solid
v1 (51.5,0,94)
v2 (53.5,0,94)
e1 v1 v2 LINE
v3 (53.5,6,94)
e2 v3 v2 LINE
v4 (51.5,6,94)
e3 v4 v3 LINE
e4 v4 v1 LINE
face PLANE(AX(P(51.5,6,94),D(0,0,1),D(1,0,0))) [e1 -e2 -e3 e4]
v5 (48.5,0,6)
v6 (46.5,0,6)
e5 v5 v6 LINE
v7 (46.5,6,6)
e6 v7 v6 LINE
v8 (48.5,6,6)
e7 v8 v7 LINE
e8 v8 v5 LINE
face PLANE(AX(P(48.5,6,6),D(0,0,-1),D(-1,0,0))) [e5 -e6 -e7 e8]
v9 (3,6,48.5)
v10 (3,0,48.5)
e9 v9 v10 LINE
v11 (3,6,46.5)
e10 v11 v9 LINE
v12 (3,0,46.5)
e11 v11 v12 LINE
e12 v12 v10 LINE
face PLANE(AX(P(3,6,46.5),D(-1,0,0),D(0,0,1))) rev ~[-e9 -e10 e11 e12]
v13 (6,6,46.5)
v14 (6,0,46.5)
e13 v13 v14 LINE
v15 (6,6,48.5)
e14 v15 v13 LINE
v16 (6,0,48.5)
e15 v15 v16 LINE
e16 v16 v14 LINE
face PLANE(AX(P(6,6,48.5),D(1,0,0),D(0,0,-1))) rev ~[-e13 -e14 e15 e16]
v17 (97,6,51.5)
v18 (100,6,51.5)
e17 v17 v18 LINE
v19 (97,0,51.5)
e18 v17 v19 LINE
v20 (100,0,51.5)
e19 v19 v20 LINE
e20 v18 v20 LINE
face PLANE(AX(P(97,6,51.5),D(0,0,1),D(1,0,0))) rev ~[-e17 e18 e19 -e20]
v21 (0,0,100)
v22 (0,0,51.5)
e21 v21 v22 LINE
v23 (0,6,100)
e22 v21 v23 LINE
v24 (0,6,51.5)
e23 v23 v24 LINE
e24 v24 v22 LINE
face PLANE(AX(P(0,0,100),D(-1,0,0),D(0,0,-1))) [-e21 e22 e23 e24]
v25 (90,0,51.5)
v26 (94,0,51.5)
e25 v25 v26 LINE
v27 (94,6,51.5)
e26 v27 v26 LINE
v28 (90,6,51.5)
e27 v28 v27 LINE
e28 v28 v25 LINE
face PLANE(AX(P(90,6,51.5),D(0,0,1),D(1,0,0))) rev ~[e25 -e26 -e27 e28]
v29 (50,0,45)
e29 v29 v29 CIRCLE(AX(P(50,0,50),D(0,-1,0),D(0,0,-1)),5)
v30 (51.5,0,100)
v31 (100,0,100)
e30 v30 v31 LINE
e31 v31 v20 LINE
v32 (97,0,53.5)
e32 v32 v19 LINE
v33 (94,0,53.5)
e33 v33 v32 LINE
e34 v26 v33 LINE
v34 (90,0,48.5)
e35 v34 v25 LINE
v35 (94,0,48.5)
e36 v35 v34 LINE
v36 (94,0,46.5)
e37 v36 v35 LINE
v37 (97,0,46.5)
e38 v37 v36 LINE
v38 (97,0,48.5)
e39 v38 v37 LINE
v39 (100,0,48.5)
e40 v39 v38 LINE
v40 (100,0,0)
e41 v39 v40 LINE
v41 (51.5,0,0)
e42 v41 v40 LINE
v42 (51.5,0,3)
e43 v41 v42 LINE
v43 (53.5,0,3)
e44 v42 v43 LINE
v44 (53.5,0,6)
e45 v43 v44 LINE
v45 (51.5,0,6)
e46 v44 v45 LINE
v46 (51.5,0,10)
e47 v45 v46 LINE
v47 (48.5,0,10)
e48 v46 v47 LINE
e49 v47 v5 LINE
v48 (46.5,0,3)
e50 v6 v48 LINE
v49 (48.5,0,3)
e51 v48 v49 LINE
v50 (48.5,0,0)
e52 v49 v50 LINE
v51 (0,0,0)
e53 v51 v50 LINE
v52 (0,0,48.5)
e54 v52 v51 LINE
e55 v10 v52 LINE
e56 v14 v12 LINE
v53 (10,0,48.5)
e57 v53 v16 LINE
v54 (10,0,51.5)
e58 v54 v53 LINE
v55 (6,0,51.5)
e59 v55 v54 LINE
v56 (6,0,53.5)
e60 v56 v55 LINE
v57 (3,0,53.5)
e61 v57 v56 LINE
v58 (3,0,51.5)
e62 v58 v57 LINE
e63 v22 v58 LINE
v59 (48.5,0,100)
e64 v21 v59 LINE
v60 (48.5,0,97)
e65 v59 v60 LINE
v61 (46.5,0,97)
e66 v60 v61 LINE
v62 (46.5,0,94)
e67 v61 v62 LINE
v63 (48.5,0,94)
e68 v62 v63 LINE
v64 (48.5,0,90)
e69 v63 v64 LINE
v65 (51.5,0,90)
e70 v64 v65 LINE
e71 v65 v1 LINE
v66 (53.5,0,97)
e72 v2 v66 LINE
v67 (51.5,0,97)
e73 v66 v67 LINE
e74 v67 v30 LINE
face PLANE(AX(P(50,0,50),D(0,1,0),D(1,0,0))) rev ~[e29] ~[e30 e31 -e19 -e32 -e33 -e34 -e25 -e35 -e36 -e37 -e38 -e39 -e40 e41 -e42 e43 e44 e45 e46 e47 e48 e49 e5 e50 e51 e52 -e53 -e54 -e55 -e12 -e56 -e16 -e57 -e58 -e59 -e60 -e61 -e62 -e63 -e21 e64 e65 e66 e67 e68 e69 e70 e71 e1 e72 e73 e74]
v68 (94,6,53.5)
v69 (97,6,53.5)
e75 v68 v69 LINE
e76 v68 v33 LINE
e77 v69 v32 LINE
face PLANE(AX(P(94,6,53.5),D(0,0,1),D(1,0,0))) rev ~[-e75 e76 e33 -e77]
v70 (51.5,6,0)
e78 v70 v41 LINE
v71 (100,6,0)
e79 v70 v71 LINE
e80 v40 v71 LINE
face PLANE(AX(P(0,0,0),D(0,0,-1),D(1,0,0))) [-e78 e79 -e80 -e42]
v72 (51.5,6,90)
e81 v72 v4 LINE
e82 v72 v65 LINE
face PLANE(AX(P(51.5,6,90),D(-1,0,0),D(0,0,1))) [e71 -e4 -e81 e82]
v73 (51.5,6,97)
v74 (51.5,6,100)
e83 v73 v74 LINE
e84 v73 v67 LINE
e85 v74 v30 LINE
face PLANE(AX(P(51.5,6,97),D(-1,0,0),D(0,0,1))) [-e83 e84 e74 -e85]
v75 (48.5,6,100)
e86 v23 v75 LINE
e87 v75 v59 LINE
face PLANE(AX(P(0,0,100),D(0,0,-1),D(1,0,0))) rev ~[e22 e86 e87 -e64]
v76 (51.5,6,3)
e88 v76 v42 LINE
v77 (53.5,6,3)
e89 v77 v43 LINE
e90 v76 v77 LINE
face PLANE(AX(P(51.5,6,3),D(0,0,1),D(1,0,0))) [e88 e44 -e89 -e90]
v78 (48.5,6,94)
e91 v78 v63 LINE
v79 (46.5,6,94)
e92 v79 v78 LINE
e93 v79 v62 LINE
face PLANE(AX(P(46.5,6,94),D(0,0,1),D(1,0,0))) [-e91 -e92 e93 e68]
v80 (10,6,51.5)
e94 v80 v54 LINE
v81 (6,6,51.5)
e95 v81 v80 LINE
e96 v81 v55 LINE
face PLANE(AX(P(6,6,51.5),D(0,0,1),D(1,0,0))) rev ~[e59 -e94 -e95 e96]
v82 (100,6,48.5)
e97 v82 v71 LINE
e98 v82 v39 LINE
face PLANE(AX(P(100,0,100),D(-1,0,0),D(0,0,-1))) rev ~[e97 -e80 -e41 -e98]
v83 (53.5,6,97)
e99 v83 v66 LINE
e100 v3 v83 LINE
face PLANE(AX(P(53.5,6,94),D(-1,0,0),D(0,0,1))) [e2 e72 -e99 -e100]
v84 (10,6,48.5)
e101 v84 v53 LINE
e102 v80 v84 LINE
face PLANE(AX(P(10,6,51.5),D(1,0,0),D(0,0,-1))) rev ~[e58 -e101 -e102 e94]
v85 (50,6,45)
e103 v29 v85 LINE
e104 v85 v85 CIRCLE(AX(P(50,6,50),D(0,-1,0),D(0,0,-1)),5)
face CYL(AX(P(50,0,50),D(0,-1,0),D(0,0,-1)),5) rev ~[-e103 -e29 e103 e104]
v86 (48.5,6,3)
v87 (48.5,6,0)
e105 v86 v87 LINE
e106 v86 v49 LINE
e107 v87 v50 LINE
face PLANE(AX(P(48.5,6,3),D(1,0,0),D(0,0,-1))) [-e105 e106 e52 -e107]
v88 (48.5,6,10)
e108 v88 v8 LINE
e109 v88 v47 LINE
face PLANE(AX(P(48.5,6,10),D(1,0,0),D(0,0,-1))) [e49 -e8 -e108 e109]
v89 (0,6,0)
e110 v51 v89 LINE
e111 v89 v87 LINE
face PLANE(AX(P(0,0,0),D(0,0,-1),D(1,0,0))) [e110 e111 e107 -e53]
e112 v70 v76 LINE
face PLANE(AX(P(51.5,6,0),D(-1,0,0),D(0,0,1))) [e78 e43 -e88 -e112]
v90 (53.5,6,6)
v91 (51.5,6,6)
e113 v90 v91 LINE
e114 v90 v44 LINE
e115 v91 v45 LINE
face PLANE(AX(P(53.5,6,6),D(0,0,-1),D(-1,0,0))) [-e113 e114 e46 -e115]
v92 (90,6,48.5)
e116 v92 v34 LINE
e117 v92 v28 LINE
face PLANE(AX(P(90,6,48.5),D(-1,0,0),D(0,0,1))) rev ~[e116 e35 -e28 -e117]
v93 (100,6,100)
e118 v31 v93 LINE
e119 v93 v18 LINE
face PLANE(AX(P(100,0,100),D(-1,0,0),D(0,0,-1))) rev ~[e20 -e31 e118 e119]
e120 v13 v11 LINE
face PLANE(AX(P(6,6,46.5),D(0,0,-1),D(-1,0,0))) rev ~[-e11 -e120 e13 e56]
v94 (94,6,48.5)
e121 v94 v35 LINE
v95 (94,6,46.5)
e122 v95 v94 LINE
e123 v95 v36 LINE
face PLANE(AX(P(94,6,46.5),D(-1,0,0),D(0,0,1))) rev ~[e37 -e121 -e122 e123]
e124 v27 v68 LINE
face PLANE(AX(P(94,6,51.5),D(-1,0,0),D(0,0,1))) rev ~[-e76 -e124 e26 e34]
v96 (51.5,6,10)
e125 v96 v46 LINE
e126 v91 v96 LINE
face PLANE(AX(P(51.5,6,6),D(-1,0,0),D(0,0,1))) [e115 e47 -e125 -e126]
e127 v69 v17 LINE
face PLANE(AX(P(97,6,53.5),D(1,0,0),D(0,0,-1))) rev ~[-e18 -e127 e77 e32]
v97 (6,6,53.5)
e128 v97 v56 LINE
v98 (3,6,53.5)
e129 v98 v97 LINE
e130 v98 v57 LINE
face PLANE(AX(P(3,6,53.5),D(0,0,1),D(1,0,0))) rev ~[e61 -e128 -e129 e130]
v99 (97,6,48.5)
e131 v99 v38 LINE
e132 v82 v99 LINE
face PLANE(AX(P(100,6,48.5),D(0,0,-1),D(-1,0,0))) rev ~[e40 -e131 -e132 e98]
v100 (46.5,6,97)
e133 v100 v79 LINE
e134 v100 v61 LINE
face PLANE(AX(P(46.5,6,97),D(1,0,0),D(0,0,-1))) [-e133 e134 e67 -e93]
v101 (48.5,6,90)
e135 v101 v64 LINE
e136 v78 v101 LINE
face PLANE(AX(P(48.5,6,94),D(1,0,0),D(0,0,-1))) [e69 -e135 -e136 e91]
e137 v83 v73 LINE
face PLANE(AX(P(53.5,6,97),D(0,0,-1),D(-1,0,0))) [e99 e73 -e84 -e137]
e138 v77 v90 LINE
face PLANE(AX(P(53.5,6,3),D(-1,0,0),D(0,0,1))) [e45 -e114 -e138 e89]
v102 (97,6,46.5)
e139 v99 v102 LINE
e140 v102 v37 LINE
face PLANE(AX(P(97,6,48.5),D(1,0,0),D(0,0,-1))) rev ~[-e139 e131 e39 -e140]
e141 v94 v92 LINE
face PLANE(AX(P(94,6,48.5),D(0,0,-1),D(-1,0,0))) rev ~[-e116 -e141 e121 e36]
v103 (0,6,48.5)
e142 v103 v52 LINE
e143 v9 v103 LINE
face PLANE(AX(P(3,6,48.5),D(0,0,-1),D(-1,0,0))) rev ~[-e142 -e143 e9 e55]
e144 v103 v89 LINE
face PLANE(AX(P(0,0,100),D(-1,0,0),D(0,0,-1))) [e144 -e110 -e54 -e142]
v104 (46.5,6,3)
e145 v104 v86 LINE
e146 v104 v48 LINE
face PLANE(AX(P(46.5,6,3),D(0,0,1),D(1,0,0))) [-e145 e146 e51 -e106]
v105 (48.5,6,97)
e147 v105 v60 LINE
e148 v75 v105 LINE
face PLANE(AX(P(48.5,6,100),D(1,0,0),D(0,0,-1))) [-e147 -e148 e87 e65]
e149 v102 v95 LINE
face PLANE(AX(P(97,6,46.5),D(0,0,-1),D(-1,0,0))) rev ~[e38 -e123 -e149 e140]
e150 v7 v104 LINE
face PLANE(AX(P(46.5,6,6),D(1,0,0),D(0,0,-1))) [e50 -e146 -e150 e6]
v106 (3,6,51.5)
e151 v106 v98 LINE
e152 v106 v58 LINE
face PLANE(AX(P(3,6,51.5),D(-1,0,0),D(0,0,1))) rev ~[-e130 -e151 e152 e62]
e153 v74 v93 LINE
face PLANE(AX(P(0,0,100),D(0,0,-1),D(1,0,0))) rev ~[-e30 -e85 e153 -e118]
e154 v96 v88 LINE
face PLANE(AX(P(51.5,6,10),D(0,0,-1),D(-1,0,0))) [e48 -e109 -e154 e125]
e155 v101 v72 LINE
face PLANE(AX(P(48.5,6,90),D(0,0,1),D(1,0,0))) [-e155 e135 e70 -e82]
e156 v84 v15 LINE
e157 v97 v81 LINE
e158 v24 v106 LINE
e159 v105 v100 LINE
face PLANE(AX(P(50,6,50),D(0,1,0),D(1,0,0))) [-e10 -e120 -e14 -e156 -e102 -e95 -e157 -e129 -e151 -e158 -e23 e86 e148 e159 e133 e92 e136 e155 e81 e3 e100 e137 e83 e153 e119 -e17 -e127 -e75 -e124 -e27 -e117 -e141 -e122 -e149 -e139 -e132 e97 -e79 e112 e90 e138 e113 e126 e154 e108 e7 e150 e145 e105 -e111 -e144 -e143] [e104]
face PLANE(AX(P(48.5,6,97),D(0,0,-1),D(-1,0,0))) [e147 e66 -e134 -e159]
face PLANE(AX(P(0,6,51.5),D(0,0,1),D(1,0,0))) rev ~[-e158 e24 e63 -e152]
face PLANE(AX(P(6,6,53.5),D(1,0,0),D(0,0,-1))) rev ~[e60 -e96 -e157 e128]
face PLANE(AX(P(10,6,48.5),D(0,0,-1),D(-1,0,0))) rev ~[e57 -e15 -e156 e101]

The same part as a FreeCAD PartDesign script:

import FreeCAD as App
import Part
import Sketcher

V = App.Vector


def add_polygon(sketch, points):
    """Adds a closed chain of lines whose ends are joined by coincident constraints."""
    first, n = sketch.GeometryCount, len(points)
    for a, b in zip(points, points[1:] + points[:1]):
        sketch.addGeometry(Part.LineSegment(App.Vector(*a, 0), App.Vector(*b, 0)), False)
    for i in range(n):
        sketch.addConstraint(Sketcher.Constraint("Coincident", first + i, 2, first + (i + 1) % n, 1))

doc = App.newDocument("Part")
body = doc.addObject("PartDesign::Body", "Body")

sketch1 = body.newObject("Sketcher::SketchObject", "Sketch")
sketch1.AttachmentSupport = (doc.getObject("XZ_Plane"), [""])
sketch1.MapMode = "FlatFace"
add_polygon(sketch1, [(0, 0), (0, 100), (100, 100), (100, 0)])
sketch1.addConstraint(Sketcher.Constraint("Vertical", 0))
sketch1.addConstraint(Sketcher.Constraint("Horizontal", 1))
sketch1.addConstraint(Sketcher.Constraint("Vertical", 2))
sketch1.addConstraint(Sketcher.Constraint("Horizontal", 3))
sketch1.addConstraint(Sketcher.Constraint("Coincident", 3, 2, -1, 1))
sketch1.addConstraint(Sketcher.Constraint("Equal", 3, 0))
sketch1.addConstraint(Sketcher.Constraint("DistanceX", 1, 1, 1, 2, 100.0))
pad1 = body.newObject("PartDesign::Pad", "Pad")
pad1.Profile = sketch1
pad1.Length = 6
pad1.Reversed = True

sketch2 = body.newObject("Sketcher::SketchObject", "Sketch001")
sketch2.AttachmentSupport = (doc.getObject("XZ_Plane"), [""])
sketch2.MapMode = "FlatFace"
sketch2.AttachmentOffset = App.Placement(V(0, 0, -6), App.Rotation())
add_polygon(sketch2, [(51.5, 0), (48.5, 0), (48.5, 3), (46.5, 3), (46.5, 6), (48.5, 6), (48.5, 10), (51.5, 10), (51.5, 6), (53.5, 6), (53.5, 3), (51.5, 3)])
add_polygon(sketch2, [(48.5, 97), (48.5, 100), (51.5, 100), (51.5, 97), (53.5, 97), (53.5, 94), (51.5, 94), (51.5, 90), (48.5, 90), (48.5, 94), (46.5, 94), (46.5, 97)])
sketch2.addConstraint(Sketcher.Constraint("Horizontal", 0))
sketch2.addConstraint(Sketcher.Constraint("Vertical", 1))
sketch2.addConstraint(Sketcher.Constraint("Horizontal", 2))
sketch2.addConstraint(Sketcher.Constraint("Vertical", 3))
sketch2.addConstraint(Sketcher.Constraint("Horizontal", 4))
sketch2.addConstraint(Sketcher.Constraint("Vertical", 5))
sketch2.addConstraint(Sketcher.Constraint("Horizontal", 6))
sketch2.addConstraint(Sketcher.Constraint("Vertical", 7))
sketch2.addConstraint(Sketcher.Constraint("Horizontal", 8))
sketch2.addConstraint(Sketcher.Constraint("Vertical", 9))
sketch2.addConstraint(Sketcher.Constraint("Horizontal", 10))
sketch2.addConstraint(Sketcher.Constraint("Vertical", 11))
sketch2.addConstraint(Sketcher.Constraint("Vertical", 12))
sketch2.addConstraint(Sketcher.Constraint("Horizontal", 13))
sketch2.addConstraint(Sketcher.Constraint("Vertical", 14))
sketch2.addConstraint(Sketcher.Constraint("Horizontal", 15))
sketch2.addConstraint(Sketcher.Constraint("Vertical", 16))
sketch2.addConstraint(Sketcher.Constraint("Horizontal", 17))
sketch2.addConstraint(Sketcher.Constraint("Vertical", 18))
sketch2.addConstraint(Sketcher.Constraint("Horizontal", 19))
sketch2.addConstraint(Sketcher.Constraint("Vertical", 20))
sketch2.addConstraint(Sketcher.Constraint("Horizontal", 21))
sketch2.addConstraint(Sketcher.Constraint("Vertical", 22))
sketch2.addConstraint(Sketcher.Constraint("Horizontal", 23))
sketch2.addConstraint(Sketcher.Constraint("PointOnObject", 0, 2, -1))
sketch2.addConstraint(Sketcher.Constraint("Horizontal", 4, 2, 7, 2))
sketch2.addConstraint(Sketcher.Constraint("Horizontal", 2, 2, 9, 2))
sketch2.addConstraint(Sketcher.Constraint("Horizontal", 17, 2, 20, 2))
sketch2.addConstraint(Sketcher.Constraint("Horizontal", 15, 2, 22, 2))
sketch2.addConstraint(Sketcher.Constraint("Vertical", 1, 2, 4, 2))
sketch2.addConstraint(Sketcher.Constraint("Vertical", 7, 2, 10, 2))
sketch2.addConstraint(Sketcher.Constraint("Vertical", 5, 2, 12, 2))
sketch2.addConstraint(Sketcher.Constraint("Vertical", 11, 2, 13, 2))
sketch2.addConstraint(Sketcher.Constraint("Vertical", 9, 2, 15, 2))
sketch2.addConstraint(Sketcher.Constraint("Vertical", 14, 2, 17, 2))
sketch2.addConstraint(Sketcher.Constraint("Vertical", 12, 2, 19, 2))
sketch2.addConstraint(Sketcher.Constraint("Vertical", 3, 2, 21, 2))
sketch2.addConstraint(Sketcher.Constraint("Equal", 4, 8))
sketch2.addConstraint(Sketcher.Constraint("Equal", 19, 1))
sketch2.addConstraint(Sketcher.Constraint("Equal", 1, 3))
sketch2.addConstraint(Sketcher.Constraint("Equal", 11, 12))
sketch2.addConstraint(Sketcher.Constraint("Equal", 14, 16))
sketch2.addConstraint(Sketcher.Constraint("Equal", 7, 18))
sketch2.addConstraint(Sketcher.Constraint("DistanceX", 0, 2, 0, 1, 3.0))
sketch2.addConstraint(Sketcher.Constraint("DistanceX", 2, 2, 2, 1, 2.0))
sketch2.addConstraint(Sketcher.Constraint("DistanceY", 5, 1, 5, 2, 4.0))
sketch2.addConstraint(Sketcher.Constraint("DistanceY", -1, 1, 12, 2, 100.0))
sketch2.addConstraint(Sketcher.Constraint("DistanceX", -1, 1, 0, 2, 48.5))
pocket1 = body.newObject("PartDesign::Pocket", "Pocket")
pocket1.Profile = sketch2
pocket1.Type = "ThroughAll"
pocket1.Reversed = True

sketch3 = body.newObject("Sketcher::SketchObject", "Sketch002")
sketch3.AttachmentSupport = (doc.getObject("XZ_Plane"), [""])
sketch3.MapMode = "FlatFace"
sketch3.addGeometry(Part.Circle(V(50, 50, 0), V(0, 0, 1), 5), False)
sketch3.addConstraint(Sketcher.Constraint("Diameter", 0, 10.0))
sketch3.addConstraint(Sketcher.Constraint("DistanceX", -1, 1, 0, 3, 50.0))
sketch3.addConstraint(Sketcher.Constraint("DistanceY", -1, 1, 0, 3, 50.0))
pocket2 = body.newObject("PartDesign::Pocket", "Pocket001")
pocket2.Profile = sketch3
pocket2.Length = 10

sketch4 = body.newObject("Sketcher::SketchObject", "Sketch003")
sketch4.AttachmentSupport = (doc.getObject("XZ_Plane"), [""])
sketch4.MapMode = "FlatFace"
sketch4.AttachmentOffset = App.Placement(V(0, 0, -6), App.Rotation())
add_polygon(sketch4, [(3, 48.5), (0, 48.5), (0, 51.5), (3, 51.5), (3, 53.5), (6, 53.5), (6, 51.5), (10, 51.5), (10, 48.5), (6, 48.5), (6, 46.5), (3, 46.5)])
add_polygon(sketch4, [(90, 48.5), (90, 51.5), (94, 51.5), (94, 53.5), (97, 53.5), (97, 51.5), (100, 51.5), (100, 48.5), (97, 48.5), (97, 46.5), (94, 46.5), (94, 48.5)])
sketch4.addConstraint(Sketcher.Constraint("Horizontal", 0))
sketch4.addConstraint(Sketcher.Constraint("Vertical", 1))
sketch4.addConstraint(Sketcher.Constraint("Horizontal", 2))
sketch4.addConstraint(Sketcher.Constraint("Vertical", 3))
sketch4.addConstraint(Sketcher.Constraint("Horizontal", 4))
sketch4.addConstraint(Sketcher.Constraint("Vertical", 5))
sketch4.addConstraint(Sketcher.Constraint("Horizontal", 6))
sketch4.addConstraint(Sketcher.Constraint("Vertical", 7))
sketch4.addConstraint(Sketcher.Constraint("Horizontal", 8))
sketch4.addConstraint(Sketcher.Constraint("Vertical", 9))
sketch4.addConstraint(Sketcher.Constraint("Horizontal", 10))
sketch4.addConstraint(Sketcher.Constraint("Vertical", 11))
sketch4.addConstraint(Sketcher.Constraint("Vertical", 12))
sketch4.addConstraint(Sketcher.Constraint("Horizontal", 13))
sketch4.addConstraint(Sketcher.Constraint("Vertical", 14))
sketch4.addConstraint(Sketcher.Constraint("Horizontal", 15))
sketch4.addConstraint(Sketcher.Constraint("Vertical", 16))
sketch4.addConstraint(Sketcher.Constraint("Horizontal", 17))
sketch4.addConstraint(Sketcher.Constraint("Vertical", 18))
sketch4.addConstraint(Sketcher.Constraint("Horizontal", 19))
sketch4.addConstraint(Sketcher.Constraint("Vertical", 20))
sketch4.addConstraint(Sketcher.Constraint("Horizontal", 21))
sketch4.addConstraint(Sketcher.Constraint("Vertical", 22))
sketch4.addConstraint(Sketcher.Constraint("Horizontal", 23))
sketch4.addConstraint(Sketcher.Constraint("PointOnObject", 0, 2, -2))
sketch4.addConstraint(Sketcher.Constraint("Horizontal", 2, 2, 5, 2))
sketch4.addConstraint(Sketcher.Constraint("Horizontal", 0, 2, 7, 2))
sketch4.addConstraint(Sketcher.Constraint("Horizontal", 6, 2, 12, 2))
sketch4.addConstraint(Sketcher.Constraint("Horizontal", 4, 2, 14, 2))
sketch4.addConstraint(Sketcher.Constraint("Horizontal", 13, 2, 16, 2))
sketch4.addConstraint(Sketcher.Constraint("Horizontal", 11, 2, 18, 2))
sketch4.addConstraint(Sketcher.Constraint("Horizontal", 10, 2, 20, 2))
sketch4.addConstraint(Sketcher.Constraint("Horizontal", 19, 2, 22, 2))
sketch4.addConstraint(Sketcher.Constraint("Vertical", 5, 2, 8, 2))
sketch4.addConstraint(Sketcher.Constraint("Vertical", 3, 2, 10, 2))
sketch4.addConstraint(Sketcher.Constraint("Vertical", 16, 2, 19, 2))
sketch4.addConstraint(Sketcher.Constraint("Vertical", 14, 2, 21, 2))
sketch4.addConstraint(Sketcher.Constraint("Equal", 2, 4))
sketch4.addConstraint(Sketcher.Constraint("Equal", 8, 13))
sketch4.addConstraint(Sketcher.Constraint("Equal", 10, 15))
sketch4.addConstraint(Sketcher.Constraint("Equal", 15, 17))
sketch4.addConstraint(Sketcher.Constraint("Equal", 21, 1))
sketch4.addConstraint(Sketcher.Constraint("Equal", 5, 9))
sketch4.addConstraint(Sketcher.Constraint("DistanceX", 0, 2, 0, 1, 3.0))
sketch4.addConstraint(Sketcher.Constraint("DistanceX", 6, 1, 6, 2, 4.0))
sketch4.addConstraint(Sketcher.Constraint("DistanceY", 3, 1, 3, 2, 2.0))
sketch4.addConstraint(Sketcher.Constraint("DistanceX", -1, 1, 12, 2, 90.0))
sketch4.addConstraint(Sketcher.Constraint("DistanceY", -1, 1, 0, 2, 48.5))
pocket3 = body.newObject("PartDesign::Pocket", "Pocket002")
pocket3.Profile = sketch4
pocket3.Type = "ThroughAll"
pocket3.Reversed = True

doc.recompute()
